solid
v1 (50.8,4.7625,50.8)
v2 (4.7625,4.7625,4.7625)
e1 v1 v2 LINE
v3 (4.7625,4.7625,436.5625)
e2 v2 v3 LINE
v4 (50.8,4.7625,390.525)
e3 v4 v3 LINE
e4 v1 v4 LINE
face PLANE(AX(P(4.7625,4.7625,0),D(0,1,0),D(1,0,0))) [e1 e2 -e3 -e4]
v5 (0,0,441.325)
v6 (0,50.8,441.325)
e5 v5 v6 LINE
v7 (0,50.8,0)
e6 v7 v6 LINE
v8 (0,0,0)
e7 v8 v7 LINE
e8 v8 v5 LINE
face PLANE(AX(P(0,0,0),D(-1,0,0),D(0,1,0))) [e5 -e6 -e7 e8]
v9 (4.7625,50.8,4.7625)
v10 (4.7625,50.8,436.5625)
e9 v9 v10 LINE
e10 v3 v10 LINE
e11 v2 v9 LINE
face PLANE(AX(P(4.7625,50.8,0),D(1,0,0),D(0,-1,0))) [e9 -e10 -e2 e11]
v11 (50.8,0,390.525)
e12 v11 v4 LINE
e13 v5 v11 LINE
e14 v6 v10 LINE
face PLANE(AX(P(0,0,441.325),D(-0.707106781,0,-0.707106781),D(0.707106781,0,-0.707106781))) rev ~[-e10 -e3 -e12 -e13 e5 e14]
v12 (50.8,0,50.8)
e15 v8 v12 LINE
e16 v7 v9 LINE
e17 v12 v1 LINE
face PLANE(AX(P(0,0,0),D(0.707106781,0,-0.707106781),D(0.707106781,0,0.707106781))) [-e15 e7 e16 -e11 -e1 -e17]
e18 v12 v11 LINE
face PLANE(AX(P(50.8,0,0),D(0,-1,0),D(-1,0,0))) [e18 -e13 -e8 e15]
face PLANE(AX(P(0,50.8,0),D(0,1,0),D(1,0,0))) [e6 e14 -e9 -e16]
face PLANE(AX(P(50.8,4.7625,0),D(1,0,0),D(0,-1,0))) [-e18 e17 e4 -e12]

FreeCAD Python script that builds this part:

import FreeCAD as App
import Part
import Sketcher
from FreeCAD import Vector
Q = App.Units.Quantity

doc = App.newDocument("Part")
body = doc.addObject("PartDesign::Body", "Body")

sketch1 = doc.addObject("Sketcher::SketchObject", "Sketch")
body.addObject(sketch1)
sketch1.AttachmentSupport = (doc.XY_Plane, [""])
sketch1.MapMode = "FlatFace"
sketch1.addGeometry([
    Part.LineSegment(Vector(0, 50.8, 0), Vector(0, 0, 0)),
    Part.LineSegment(Vector(0, 0, 0), Vector(50.8, 0, 0)),
    Part.LineSegment(Vector(50.8, 0, 0), Vector(50.8, 4.8, 0)),
    Part.LineSegment(Vector(50.8, 4.8, 0), Vector(4.8, 4.8, 0)),
    Part.LineSegment(Vector(4.8, 4.8, 0), Vector(4.8, 50.8, 0)),
    Part.LineSegment(Vector(4.8, 50.8, 0), Vector(0, 50.8, 0)),
], False)
sketch1.addConstraint([
    Sketcher.Constraint("Coincident", 0, 2, 1, 1),
    Sketcher.Constraint("Coincident", 1, 2, 2, 1),
    Sketcher.Constraint("Coincident", 2, 2, 3, 1),
    Sketcher.Constraint("Coincident", 3, 2, 4, 1),
    Sketcher.Constraint("Coincident", 4, 2, 5, 1),
    Sketcher.Constraint("Coincident", 5, 2, 0, 1),
    Sketcher.Constraint("Vertical", 0),
    Sketcher.Constraint("Horizontal", 1),
    Sketcher.Constraint("Vertical", 2),
    Sketcher.Constraint("Horizontal", 3),
    Sketcher.Constraint("Vertical", 4),
    Sketcher.Constraint("Horizontal", 5),
    Sketcher.Constraint("Coincident", 0, 2, -1, 1),
    Sketcher.Constraint("Equal", 1, 0),
    Sketcher.Constraint("Equal", 5, 2),
    Sketcher.Constraint("DistanceX", 1, 1, 1, 2, Q("2 in")),
    Sketcher.Constraint("DistanceX", 5, 2, 5, 1, Q("0.1875 in")),
])
pad1 = doc.addObject("PartDesign::Pad", "Pad")
body.addObject(pad1)
pad1.Profile = sketch1
pad1.Length = Q("17.375 in")

sketch2 = doc.addObject("Sketcher::SketchObject", "Sketch001")
body.addObject(sketch2)
sketch2.AttachmentSupport = (doc.XZ_Plane, [""])
sketch2.MapMode = "FlatFace"
sketch2.addGeometry([
    Part.LineSegment(Vector(51, 391, 0), Vector(51, 441, 0)),
    Part.LineSegment(Vector(51, 441, 0), Vector(0, 441, 0)),
    Part.LineSegment(Vector(0, 441, 0), Vector(51, 391, 0)),
], False)
sketch2.addConstraint([
    Sketcher.Constraint("Coincident", 0, 2, 1, 1),
    Sketcher.Constraint("Coincident", 1, 2, 2, 1),
    Sketcher.Constraint("Coincident", 2, 2, 0, 1),
    Sketcher.Constraint("Vertical", 0),
    Sketcher.Constraint("Horizontal", 1),
    Sketcher.Constraint("PointOnObject", 1, 2, -2),
    Sketcher.Constraint("Equal", 1, 0),
    Sketcher.Constraint("DistanceX", 1, 2, 1, 1, Q("2 in")),
    Sketcher.Constraint("DistanceY", -1, 1, 0, 2, Q("17.375 in")),
])
pocket1 = doc.addObject("PartDesign::Pocket", "Pocket")
body.addObject(pocket1)
pocket1.Profile = sketch2
pocket1.Length = Q("2 in")

sketch3 = doc.addObject("Sketcher::SketchObject", "Sketch002")
body.addObject(sketch3)
sketch3.AttachmentSupport = (doc.XZ_Plane, [""])
sketch3.MapMode = "FlatFace"
sketch3.addGeometry([
    Part.LineSegment(Vector(0, 0, 0), Vector(51, 0, 0)),
    Part.LineSegment(Vector(51, 0, 0), Vector(51, 51, 0)),
    Part.LineSegment(Vector(51, 51, 0), Vector(0, 0, 0)),
], False)
sketch3.addConstraint([
    Sketcher.Constraint("Coincident", 0, 2, 1, 1),
    Sketcher.Constraint("Coincident", 1, 2, 2, 1),
    Sketcher.Constraint("Coincident", 2, 2, 0, 1),
    Sketcher.Constraint("Horizontal", 0),
    Sketcher.Constraint("Vertical", 1),
    Sketcher.Constraint("Coincident", 2, 2, -1, 1),
    Sketcher.Constraint("Equal", 0, 1),
    Sketcher.Constraint("DistanceX", 0, 1, 0, 2, Q("2 in")),
])
pocket2 = doc.addObject("PartDesign::Pocket", "Pocket001")
body.addObject(pocket2)
pocket2.Profile = sketch3
pocket2.Length = Q("2 in")

doc.recompute()
